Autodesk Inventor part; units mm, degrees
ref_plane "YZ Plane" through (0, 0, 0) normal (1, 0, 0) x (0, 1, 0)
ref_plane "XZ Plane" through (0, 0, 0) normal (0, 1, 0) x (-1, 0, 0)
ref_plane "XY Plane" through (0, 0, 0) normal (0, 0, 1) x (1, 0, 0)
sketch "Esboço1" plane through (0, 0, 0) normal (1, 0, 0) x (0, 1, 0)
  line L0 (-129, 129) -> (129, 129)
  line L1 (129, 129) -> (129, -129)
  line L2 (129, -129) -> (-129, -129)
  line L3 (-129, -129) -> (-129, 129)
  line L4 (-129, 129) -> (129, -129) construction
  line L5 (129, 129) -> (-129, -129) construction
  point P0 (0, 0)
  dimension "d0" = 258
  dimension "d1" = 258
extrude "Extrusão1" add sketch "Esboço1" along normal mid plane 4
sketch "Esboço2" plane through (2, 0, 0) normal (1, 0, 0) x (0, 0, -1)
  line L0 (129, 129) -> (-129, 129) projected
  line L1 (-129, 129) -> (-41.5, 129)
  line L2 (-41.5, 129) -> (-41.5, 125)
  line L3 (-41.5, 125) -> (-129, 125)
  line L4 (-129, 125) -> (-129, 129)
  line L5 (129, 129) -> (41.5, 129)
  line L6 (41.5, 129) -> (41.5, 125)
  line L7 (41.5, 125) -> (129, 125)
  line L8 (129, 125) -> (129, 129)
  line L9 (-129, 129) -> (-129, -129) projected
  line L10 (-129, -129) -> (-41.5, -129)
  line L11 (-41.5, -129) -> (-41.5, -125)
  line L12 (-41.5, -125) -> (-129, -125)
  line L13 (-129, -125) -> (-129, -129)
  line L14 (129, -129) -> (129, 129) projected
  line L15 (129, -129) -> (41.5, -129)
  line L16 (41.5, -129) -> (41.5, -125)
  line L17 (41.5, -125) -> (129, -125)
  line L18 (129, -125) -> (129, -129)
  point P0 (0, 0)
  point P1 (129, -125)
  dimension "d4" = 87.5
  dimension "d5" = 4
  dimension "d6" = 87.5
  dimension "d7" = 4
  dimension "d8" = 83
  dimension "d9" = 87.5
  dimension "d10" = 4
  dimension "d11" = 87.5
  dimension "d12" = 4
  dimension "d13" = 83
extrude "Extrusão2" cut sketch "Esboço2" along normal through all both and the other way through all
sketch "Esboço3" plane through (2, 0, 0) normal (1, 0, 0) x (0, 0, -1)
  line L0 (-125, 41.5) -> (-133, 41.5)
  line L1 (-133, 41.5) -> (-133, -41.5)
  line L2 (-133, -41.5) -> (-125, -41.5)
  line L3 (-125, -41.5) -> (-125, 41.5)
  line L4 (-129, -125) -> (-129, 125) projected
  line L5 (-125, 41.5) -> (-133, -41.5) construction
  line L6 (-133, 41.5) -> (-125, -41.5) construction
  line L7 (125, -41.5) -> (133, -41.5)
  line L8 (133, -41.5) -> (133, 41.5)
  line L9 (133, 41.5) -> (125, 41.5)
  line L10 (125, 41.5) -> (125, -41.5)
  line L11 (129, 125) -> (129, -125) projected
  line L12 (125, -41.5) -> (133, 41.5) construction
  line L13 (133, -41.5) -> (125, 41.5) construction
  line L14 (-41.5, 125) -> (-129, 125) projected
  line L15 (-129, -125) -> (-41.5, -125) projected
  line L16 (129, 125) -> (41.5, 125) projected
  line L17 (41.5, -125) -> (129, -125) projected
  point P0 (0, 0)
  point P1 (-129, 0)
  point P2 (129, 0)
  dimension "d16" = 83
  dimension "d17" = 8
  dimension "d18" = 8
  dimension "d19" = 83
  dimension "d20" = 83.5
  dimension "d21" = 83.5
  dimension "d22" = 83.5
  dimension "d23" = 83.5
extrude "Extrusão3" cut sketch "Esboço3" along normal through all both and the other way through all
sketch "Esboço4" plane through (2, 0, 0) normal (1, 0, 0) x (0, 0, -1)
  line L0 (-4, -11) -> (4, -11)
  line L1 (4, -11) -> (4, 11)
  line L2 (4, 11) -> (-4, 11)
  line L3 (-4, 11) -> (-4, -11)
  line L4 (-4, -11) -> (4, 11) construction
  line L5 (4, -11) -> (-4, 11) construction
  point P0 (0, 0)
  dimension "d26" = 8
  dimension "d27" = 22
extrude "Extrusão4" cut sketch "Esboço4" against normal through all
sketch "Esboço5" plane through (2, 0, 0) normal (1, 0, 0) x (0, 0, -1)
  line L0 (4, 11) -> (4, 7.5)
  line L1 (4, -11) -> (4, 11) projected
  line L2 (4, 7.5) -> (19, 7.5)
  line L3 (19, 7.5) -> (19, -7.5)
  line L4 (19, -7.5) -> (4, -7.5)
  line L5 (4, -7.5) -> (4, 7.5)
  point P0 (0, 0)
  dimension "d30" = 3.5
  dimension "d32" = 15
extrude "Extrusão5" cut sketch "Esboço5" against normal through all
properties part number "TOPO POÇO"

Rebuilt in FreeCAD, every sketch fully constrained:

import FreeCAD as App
import Part
import Sketcher


def add_polygon(sketch, points):
    """Adds a closed chain of lines whose ends are joined by coincident constraints."""
    first, n = sketch.GeometryCount, len(points)
    for a, b in zip(points, points[1:] + points[:1]):
        sketch.addGeometry(Part.LineSegment(App.Vector(*a, 0), App.Vector(*b, 0)), False)
    for i in range(n):
        sketch.addConstraint(Sketcher.Constraint("Coincident", first + i, 2, first + (i + 1) % n, 1))

doc = App.newDocument("Part")
params = doc.addObject("Spreadsheet::Sheet", "Params")
for row, (alias, value) in enumerate([
    ("sketch1_width", "258 mm"),
    ("pad1_length", "4 mm"),
    ("sketch2_width", "4 mm"),
    ("sketch2_height", "87.5 mm"),
    ("sketch3_width", "83 mm"),
    ("sketch3_height", "8 mm"),
    ("sketch4_width", "22 mm"),
    ("sketch4_height", "8 mm"),
    ("sketch5_width", "15 mm"),
], start=1):
    params.set(f"A{row}", alias)
    params.set(f"B{row}", "=" + value)
    params.setAlias(f"B{row}", alias)

body = doc.addObject("PartDesign::Body", "Body")

sketch1 = body.newObject("Sketcher::SketchObject", "Sketch")
sketch1.AttachmentSupport = (doc.getObject("YZ_Plane"), [""])
sketch1.MapMode = "FlatFace"
add_polygon(sketch1, [(129, 129), (-129, 129), (-129, -129), (129, -129)])
sketch1.addConstraint(Sketcher.Constraint("Horizontal", 0))
sketch1.addConstraint(Sketcher.Constraint("Vertical", 1))
sketch1.addConstraint(Sketcher.Constraint("Horizontal", 2))
sketch1.addConstraint(Sketcher.Constraint("Vertical", 3))
sketch1.addConstraint(Sketcher.Constraint("Symmetric", 0, 2, 2, 2, -1, 1))
sketch1.addConstraint(Sketcher.Constraint("Equal", 2, 1))
sketch1.addConstraint(Sketcher.Constraint("DistanceX", 0, 2, 0, 1, 258.0))
sketch1.setExpression("Constraints[10]", "Params.sketch1_width")
pad1 = body.newObject("PartDesign::Pad", "Pad")
pad1.Profile = sketch1
pad1.setExpression("Length", "Params.pad1_length")
pad1.Midplane = True

sketch2 = body.newObject("Sketcher::SketchObject", "Sketch001")
sketch2.AttachmentSupport = (doc.getObject("YZ_Plane"), [""])
sketch2.MapMode = "FlatFace"
sketch2.AttachmentOffset = App.Placement(App.Vector(0, 0, 2), App.Rotation())
add_polygon(sketch2, [(125, -129), (129, -129), (129, -41.5), (125, -41.5)])
add_polygon(sketch2, [(-129, -129), (-125, -129), (-125, -41.5), (-129, -41.5)])
add_polygon(sketch2, [(-125, 41.5), (-125, 129), (-129, 129), (-129, 41.5)])
add_polygon(sketch2, [(125, 41.5), (129, 41.5), (129, 129), (125, 129)])
sketch2.addConstraint(Sketcher.Constraint("Horizontal", 0))
sketch2.addConstraint(Sketcher.Constraint("Vertical", 1))
sketch2.addConstraint(Sketcher.Constraint("Horizontal", 2))
sketch2.addConstraint(Sketcher.Constraint("Vertical", 3))
sketch2.addConstraint(Sketcher.Constraint("Horizontal", 4))
sketch2.addConstraint(Sketcher.Constraint("Vertical", 5))
sketch2.addConstraint(Sketcher.Constraint("Horizontal", 6))
sketch2.addConstraint(Sketcher.Constraint("Vertical", 7))
sketch2.addConstraint(Sketcher.Constraint("Vertical", 8))
sketch2.addConstraint(Sketcher.Constraint("Horizontal", 9))
sketch2.addConstraint(Sketcher.Constraint("Vertical", 10))
sketch2.addConstraint(Sketcher.Constraint("Horizontal", 11))
sketch2.addConstraint(Sketcher.Constraint("Horizontal", 12))
sketch2.addConstraint(Sketcher.Constraint("Vertical", 13))
sketch2.addConstraint(Sketcher.Constraint("Horizontal", 14))
sketch2.addConstraint(Sketcher.Constraint("Vertical", 15))
sketch2.addConstraint(Sketcher.Constraint("Symmetric", 3, 2, 8, 2, -1, 1))
sketch2.addConstraint(Sketcher.Constraint("Symmetric", 1, 2, 10, 2, -1, 1))
sketch2.addConstraint(Sketcher.Constraint("Symmetric", 6, 2, 12, 2, -1, 1))
sketch2.addConstraint(Sketcher.Constraint("Symmetric", 4, 2, 14, 2, -1, 1))
sketch2.addConstraint(Sketcher.Constraint("Symmetric", 3, 2, 4, 2, -2))
sketch2.addConstraint(Sketcher.Constraint("Symmetric", 1, 2, 6, 2, -2))
sketch2.addConstraint(Sketcher.Constraint("DistanceX", 0, 1, 0, 2, 4.0))
sketch2.addConstraint(Sketcher.Constraint("DistanceY", 1, 1, 1, 2, 87.5))
sketch2.addConstraint(Sketcher.Constraint("DistanceY", 6, 2, 10, 2, 83.0))
sketch2.addConstraint(Sketcher.Constraint("DistanceX", -1, 1, 0, 2, 129.0))
sketch2.setExpression("Constraints[38]", "Params.sketch2_width")
sketch2.setExpression("Constraints[39]", "Params.sketch2_height")
pocket1 = body.newObject("PartDesign::Pocket", "Pocket")
pocket1.Profile = sketch2
pocket1.Type = "ThroughAll"
pocket1.Midplane = True

sketch3 = body.newObject("Sketcher::SketchObject", "Sketch002")
sketch3.AttachmentSupport = (doc.getObject("YZ_Plane"), [""])
sketch3.MapMode = "FlatFace"
sketch3.AttachmentOffset = App.Placement(App.Vector(0, 0, 2), App.Rotation())
add_polygon(sketch3, [(-42, 125), (42, 125), (42, 133), (-42, 133)])
add_polygon(sketch3, [(42, -125), (-42, -125), (-42, -133), (42, -133)])
sketch3.addConstraint(Sketcher.Constraint("Horizontal", 0))
sketch3.addConstraint(Sketcher.Constraint("Vertical", 1))
sketch3.addConstraint(Sketcher.Constraint("Horizontal", 2))
sketch3.addConstraint(Sketcher.Constraint("Vertical", 3))
sketch3.addConstraint(Sketcher.Constraint("Horizontal", 4))
sketch3.addConstraint(Sketcher.Constraint("Vertical", 5))
sketch3.addConstraint(Sketcher.Constraint("Horizontal", 6))
sketch3.addConstraint(Sketcher.Constraint("Vertical", 7))
sketch3.addConstraint(Sketcher.Constraint("Symmetric", 0, 2, 4, 2, -1, 1))
sketch3.addConstraint(Sketcher.Constraint("Symmetric", 2, 2, 6, 2, -1, 1))
sketch3.addConstraint(Sketcher.Constraint("Vertical", 3, 2, 4, 2))
sketch3.addConstraint(Sketcher.Constraint("DistanceX", 0, 1, 0, 2, 83.0))
sketch3.addConstraint(Sketcher.Constraint("DistanceY", 1, 1, 1, 2, 8.0))
sketch3.addConstraint(Sketcher.Constraint("DistanceY", -1, 1, 0, 2, 125.0))
sketch3.setExpression("Constraints[19]", "Params.sketch3_width")
sketch3.setExpression("Constraints[20]", "Params.sketch3_height")
pocket2 = body.newObject("PartDesign::Pocket", "Pocket001")
pocket2.Profile = sketch3
pocket2.Type = "ThroughAll"
pocket2.Midplane = True

sketch4 = body.newObject("Sketcher::SketchObject", "Sketch003")
sketch4.AttachmentSupport = (doc.getObject("YZ_Plane"), [""])
sketch4.MapMode = "FlatFace"
sketch4.AttachmentOffset = App.Placement(App.Vector(0, 0, 2), App.Rotation())
add_polygon(sketch4, [(11, 4), (-11, 4), (-11, -4), (11, -4)])
sketch4.addConstraint(Sketcher.Constraint("Horizontal", 0))
sketch4.addConstraint(Sketcher.Constraint("Vertical", 1))
sketch4.addConstraint(Sketcher.Constraint("Horizontal", 2))
sketch4.addConstraint(Sketcher.Constraint("Vertical", 3))
sketch4.addConstraint(Sketcher.Constraint("Symmetric", 0, 2, 2, 2, -1, 1))
sketch4.addConstraint(Sketcher.Constraint("DistanceX", 0, 2, 0, 1, 22.0))
sketch4.addConstraint(Sketcher.Constraint("DistanceY", 1, 2, 1, 1, 8.0))
sketch4.setExpression("Constraints[9]", "Params.sketch4_width")
sketch4.setExpression("Constraints[10]", "Params.sketch4_height")
pocket3 = body.newObject("PartDesign::Pocket", "Pocket002")
pocket3.Profile = sketch4
pocket3.Type = "ThroughAll"

sketch5 = body.newObject("Sketcher::SketchObject", "Sketch004")
sketch5.AttachmentSupport = (doc.getObject("YZ_Plane"), [""])
sketch5.MapMode = "FlatFace"
sketch5.AttachmentOffset = App.Placement(App.Vector(0, 0, 2), App.Rotation())
add_polygon(sketch5, [(8, -4), (-8, -4), (-8, -19), (8, -19)])
sketch5.addConstraint(Sketcher.Constraint("Horizontal", 0))
sketch5.addConstraint(Sketcher.Constraint("Vertical", 1))
sketch5.addConstraint(Sketcher.Constraint("Horizontal", 2))
sketch5.addConstraint(Sketcher.Constraint("Vertical", 3))
sketch5.addConstraint(Sketcher.Constraint("Equal", 2, 1))
sketch5.addConstraint(Sketcher.Constraint("DistanceX", 0, 2, 0, 1, 15.0))
sketch5.addConstraint(Sketcher.Constraint("DistanceY", 0, 2, -1, 1, 4.0))
sketch5.addConstraint(Sketcher.Constraint("DistanceX", 0, 2, -1, 1, 7.5))
sketch5.setExpression("Constraints[9]", "Params.sketch5_width")
pocket4 = body.newObject("PartDesign::Pocket", "Pocket003")
pocket4.Profile = sketch5
pocket4.Type = "ThroughAll"

doc.recompute()
